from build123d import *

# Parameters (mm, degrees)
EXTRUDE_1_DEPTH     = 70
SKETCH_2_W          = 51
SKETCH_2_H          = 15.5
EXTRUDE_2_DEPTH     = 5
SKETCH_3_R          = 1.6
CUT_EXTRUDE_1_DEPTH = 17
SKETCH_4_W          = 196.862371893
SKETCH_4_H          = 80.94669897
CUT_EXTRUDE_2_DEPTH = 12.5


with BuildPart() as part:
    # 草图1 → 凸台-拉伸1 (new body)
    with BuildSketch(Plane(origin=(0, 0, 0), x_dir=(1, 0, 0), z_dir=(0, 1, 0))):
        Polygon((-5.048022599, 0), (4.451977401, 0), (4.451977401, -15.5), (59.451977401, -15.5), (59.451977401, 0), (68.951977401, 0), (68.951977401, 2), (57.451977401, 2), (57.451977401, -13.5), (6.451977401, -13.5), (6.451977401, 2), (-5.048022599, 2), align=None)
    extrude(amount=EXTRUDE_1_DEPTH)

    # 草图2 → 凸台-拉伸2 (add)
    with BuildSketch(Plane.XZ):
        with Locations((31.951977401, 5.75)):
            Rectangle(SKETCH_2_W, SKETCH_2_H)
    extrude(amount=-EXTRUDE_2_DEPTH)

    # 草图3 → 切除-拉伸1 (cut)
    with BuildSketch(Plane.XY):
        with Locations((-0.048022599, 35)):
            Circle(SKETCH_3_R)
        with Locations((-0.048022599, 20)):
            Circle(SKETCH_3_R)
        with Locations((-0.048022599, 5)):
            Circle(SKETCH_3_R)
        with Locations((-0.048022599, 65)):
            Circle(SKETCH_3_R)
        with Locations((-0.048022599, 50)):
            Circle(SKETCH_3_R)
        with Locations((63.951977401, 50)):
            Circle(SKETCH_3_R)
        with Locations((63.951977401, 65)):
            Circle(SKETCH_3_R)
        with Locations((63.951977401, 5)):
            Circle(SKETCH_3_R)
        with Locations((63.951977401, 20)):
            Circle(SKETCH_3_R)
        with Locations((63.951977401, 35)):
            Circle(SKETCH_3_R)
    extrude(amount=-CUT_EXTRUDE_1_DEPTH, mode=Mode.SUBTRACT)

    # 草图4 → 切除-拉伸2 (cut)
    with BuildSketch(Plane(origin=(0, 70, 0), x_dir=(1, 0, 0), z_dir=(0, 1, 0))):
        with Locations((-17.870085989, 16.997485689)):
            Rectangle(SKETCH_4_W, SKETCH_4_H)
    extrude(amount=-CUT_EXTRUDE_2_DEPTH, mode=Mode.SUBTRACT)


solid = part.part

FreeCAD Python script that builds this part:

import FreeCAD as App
import Part
import Sketcher

V = App.Vector

doc = App.newDocument("Part")
body = doc.addObject("PartDesign::Body", "Body")

sketch1 = body.newObject("Sketcher::SketchObject", "Sketch")
sketch1.AttachmentSupport = (doc.getObject("XZ_Plane"), [""])
sketch1.MapMode = "FlatFace"
sketch1.addGeometry([
    Part.LineSegment(V(-5, 0, 0), V(4.5, 0, 0)),
    Part.LineSegment(V(4.5, 0, 0), V(4.5, 15.5, 0)),
    Part.LineSegment(V(4.5, 15.5, 0), V(59.5, 15.5, 0)),
    Part.LineSegment(V(59.5, 15.5, 0), V(59.5, 0, 0)),
    Part.LineSegment(V(59.5, 0, 0), V(69, 0, 0)),
    Part.LineSegment(V(69, 0, 0), V(69, -2, 0)),
    Part.LineSegment(V(69, -2, 0), V(57.5, -2, 0)),
    Part.LineSegment(V(57.5, -2, 0), V(57.5, 13.5, 0)),
    Part.LineSegment(V(57.5, 13.5, 0), V(6.5, 13.5, 0)),
    Part.LineSegment(V(6.5, 13.5, 0), V(6.5, -2, 0)),
    Part.LineSegment(V(6.5, -2, 0), V(-5, -2, 0)),
    Part.LineSegment(V(-5, -2, 0), V(-5, 0, 0)),
], False)
sketch1.addConstraint([
    Sketcher.Constraint("Coincident", 0, 2, 1, 1),
    Sketcher.Constraint("Coincident", 1, 2, 2, 1),
    Sketcher.Constraint("Coincident", 2, 2, 3, 1),
    Sketcher.Constraint("Coincident", 3, 2, 4, 1),
    Sketcher.Constraint("Coincident", 4, 2, 5, 1),
    Sketcher.Constraint("Coincident", 5, 2, 6, 1),
    Sketcher.Constraint("Coincident", 6, 2, 7, 1),
    Sketcher.Constraint("Coincident", 7, 2, 8, 1),
    Sketcher.Constraint("Coincident", 8, 2, 9, 1),
    Sketcher.Constraint("Coincident", 9, 2, 10, 1),
    Sketcher.Constraint("Coincident", 10, 2, 11, 1),
    Sketcher.Constraint("Coincident", 11, 2, 0, 1),
    Sketcher.Constraint("Horizontal", 0),
    Sketcher.Constraint("Vertical", 1),
    Sketcher.Constraint("Horizontal", 2),
    Sketcher.Constraint("Vertical", 3),
    Sketcher.Constraint("Horizontal", 4),
    Sketcher.Constraint("Vertical", 5),
    Sketcher.Constraint("Horizontal", 6),
    Sketcher.Constraint("Vertical", 7),
    Sketcher.Constraint("Horizontal", 8),
    Sketcher.Constraint("Vertical", 9),
    Sketcher.Constraint("Horizontal", 10),
    Sketcher.Constraint("Vertical", 11),
    Sketcher.Constraint("PointOnObject", 0, 2, -1),
    Sketcher.Constraint("PointOnObject", 3, 2, -1),
    Sketcher.Constraint("Horizontal", 6, 2, 9, 2),
    Sketcher.Constraint("Equal", 0, 4),
    Sketcher.Constraint("Equal", 6, 10),
    Sketcher.Constraint("Equal", 3, 7),
    Sketcher.Constraint("DistanceX", 2, 1, 2, 2, 55.0),
    Sketcher.Constraint("DistanceX", 8, 2, 8, 1, 51.0),
    Sketcher.Constraint("DistanceY", 5, 2, 5, 1, 2.0),
    Sketcher.Constraint("DistanceX", 0, 1, 0, 2, 9.5),
    Sketcher.Constraint("DistanceY", 1, 1, 1, 2, 15.5),
    Sketcher.Constraint("DistanceX", -1, 1, 0, 2, 4.451977),
])
pad1 = body.newObject("PartDesign::Pad", "Pad")
pad1.Profile = sketch1
pad1.Length = 70
pad1.Reversed = True

sketch2 = body.newObject("Sketcher::SketchObject", "Sketch001")
sketch2.AttachmentSupport = (doc.getObject("XZ_Plane"), [""])
sketch2.MapMode = "FlatFace"
sketch2.addGeometry([
    Part.LineSegment(V(6, 14, 0), V(6, -2, 0)),
    Part.LineSegment(V(6, -2, 0), V(57, -2, 0)),
    Part.LineSegment(V(57, -2, 0), V(57, 14, 0)),
    Part.LineSegment(V(57, 14, 0), V(6, 14, 0)),
], False)
sketch2.addConstraint([
    Sketcher.Constraint("Coincident", 0, 2, 1, 1),
    Sketcher.Constraint("Coincident", 1, 2, 2, 1),
    Sketcher.Constraint("Coincident", 2, 2, 3, 1),
    Sketcher.Constraint("Coincident", 3, 2, 0, 1),
    Sketcher.Constraint("Vertical", 0),
    Sketcher.Constraint("Horizontal", 1),
    Sketcher.Constraint("Vertical", 2),
    Sketcher.Constraint("Horizontal", 3),
    Sketcher.Constraint("DistanceX", 1, 1, 1, 2, 51.0),
    Sketcher.Constraint("DistanceY", 0, 2, 0, 1, 15.5),
    Sketcher.Constraint("DistanceY", 0, 2, -1, 1, 2.0),
    Sketcher.Constraint("DistanceX", -1, 1, 0, 2, 6.451977),
])
pad2 = body.newObject("PartDesign::Pad", "Pad001")
pad2.Profile = sketch2
pad2.Length = 5
pad2.Reversed = True

sketch3 = body.newObject("Sketcher::SketchObject", "Sketch002")
sketch3.AttachmentSupport = (doc.getObject("XY_Plane"), [""])
sketch3.MapMode = "FlatFace"
sketch3.addGeometry([
    Part.Circle(V(0, 35, 0), V(0, 0, 1), 1.6),
    Part.Circle(V(0, 20, 0), V(0, 0, 1), 1.6),
    Part.Circle(V(0, 5, 0), V(0, 0, 1), 1.6),
    Part.Circle(V(0, 65, 0), V(0, 0, 1), 1.6),
    Part.Circle(V(0, 50, 0), V(0, 0, 1), 1.6),
    Part.Circle(V(64, 50, 0), V(0, 0, 1), 1.6),
    Part.Circle(V(64, 65, 0), V(0, 0, 1), 1.6),
    Part.Circle(V(64, 5, 0), V(0, 0, 1), 1.6),
    Part.Circle(V(64, 20, 0), V(0, 0, 1), 1.6),
    Part.Circle(V(64, 35, 0), V(0, 0, 1), 1.6),
], False)
sketch3.addConstraint([
    Sketcher.Constraint("Equal", 0, 1),
    Sketcher.Constraint("Equal", 1, 2),
    Sketcher.Constraint("Equal", 2, 3),
    Sketcher.Constraint("Equal", 3, 4),
    Sketcher.Constraint("Equal", 4, 5),
    Sketcher.Constraint("Equal", 5, 6),
    Sketcher.Constraint("Equal", 6, 7),
    Sketcher.Constraint("Equal", 7, 8),
    Sketcher.Constraint("Equal", 8, 9),
    Sketcher.Constraint("Horizontal", 4, 3, 5, 3),
    Sketcher.Constraint("Horizontal", 3, 3, 6, 3),
    Sketcher.Constraint("Horizontal", 2, 3, 7, 3),
    Sketcher.Constraint("Horizontal", 1, 3, 8, 3),
    Sketcher.Constraint("Horizontal", 0, 3, 9, 3),
    Sketcher.Constraint("Vertical", 0, 3, 1, 3),
    Sketcher.Constraint("Vertical", 1, 3, 2, 3),
    Sketcher.Constraint("Vertical", 2, 3, 3, 3),
    Sketcher.Constraint("Vertical", 3, 3, 4, 3),
    Sketcher.Constraint("Vertical", 5, 3, 6, 3),
    Sketcher.Constraint("Vertical", 6, 3, 7, 3),
    Sketcher.Constraint("Vertical", 7, 3, 8, 3),
    Sketcher.Constraint("Vertical", 8, 3, 9, 3),
    Sketcher.Constraint("Diameter", 0, 3.2),
    Sketcher.Constraint("DistanceY", -1, 1, 0, 3, 35.0),
    Sketcher.Constraint("DistanceY", -1, 1, 1, 3, 20.0),
    Sketcher.Constraint("DistanceY", -1, 1, 2, 3, 5.0),
    Sketcher.Constraint("DistanceY", -1, 1, 3, 3, 65.0),
    Sketcher.Constraint("DistanceY", -1, 1, 4, 3, 50.0),
    Sketcher.Constraint("DistanceX", 4, 3, 5, 3, 64.0),
    Sketcher.Constraint("DistanceX", 0, 3, -1, 1, 0.048023),
])
pocket1 = body.newObject("PartDesign::Pocket", "Pocket")
pocket1.Profile = sketch3
pocket1.Length = 17

sketch4 = body.newObject("Sketcher::SketchObject", "Sketch003")
sketch4.AttachmentSupport = (doc.getObject("XZ_Plane"), [""])
sketch4.MapMode = "FlatFace"
sketch4.AttachmentOffset = App.Placement(V(0, 0, -70), App.Rotation())
sketch4.addGeometry([
    Part.LineSegment(V(-116, -57, 0), V(-116, 23, 0)),
    Part.LineSegment(V(-116, 23, 0), V(81, 23, 0)),
    Part.LineSegment(V(81, 23, 0), V(81, -57, 0)),
    Part.LineSegment(V(81, -57, 0), V(-116, -57, 0)),
], False)
sketch4.addConstraint([
    Sketcher.Constraint("Coincident", 0, 2, 1, 1),
    Sketcher.Constraint("Coincident", 1, 2, 2, 1),
    Sketcher.Constraint("Coincident", 2, 2, 3, 1),
    Sketcher.Constraint("Coincident", 3, 2, 0, 1),
    Sketcher.Constraint("Vertical", 0),
    Sketcher.Constraint("Horizontal", 1),
    Sketcher.Constraint("Vertical", 2),
    Sketcher.Constraint("Horizontal", 3),
    Sketcher.Constraint("DistanceY", 0, 1, 0, 2, 80.946699),
    Sketcher.Constraint("DistanceX", 1, 1, 1, 2, 196.862372),
    Sketcher.Constraint("DistanceX", -1, 1, 1, 2, 80.5611),
    Sketcher.Constraint("DistanceY", -1, 1, 0, 2, 23.475864),
])
pocket2 = body.newObject("PartDesign::Pocket", "Pocket001")
pocket2.Profile = sketch4
pocket2.Length = 12.5
pocket2.Reversed = True

doc.recompute()
